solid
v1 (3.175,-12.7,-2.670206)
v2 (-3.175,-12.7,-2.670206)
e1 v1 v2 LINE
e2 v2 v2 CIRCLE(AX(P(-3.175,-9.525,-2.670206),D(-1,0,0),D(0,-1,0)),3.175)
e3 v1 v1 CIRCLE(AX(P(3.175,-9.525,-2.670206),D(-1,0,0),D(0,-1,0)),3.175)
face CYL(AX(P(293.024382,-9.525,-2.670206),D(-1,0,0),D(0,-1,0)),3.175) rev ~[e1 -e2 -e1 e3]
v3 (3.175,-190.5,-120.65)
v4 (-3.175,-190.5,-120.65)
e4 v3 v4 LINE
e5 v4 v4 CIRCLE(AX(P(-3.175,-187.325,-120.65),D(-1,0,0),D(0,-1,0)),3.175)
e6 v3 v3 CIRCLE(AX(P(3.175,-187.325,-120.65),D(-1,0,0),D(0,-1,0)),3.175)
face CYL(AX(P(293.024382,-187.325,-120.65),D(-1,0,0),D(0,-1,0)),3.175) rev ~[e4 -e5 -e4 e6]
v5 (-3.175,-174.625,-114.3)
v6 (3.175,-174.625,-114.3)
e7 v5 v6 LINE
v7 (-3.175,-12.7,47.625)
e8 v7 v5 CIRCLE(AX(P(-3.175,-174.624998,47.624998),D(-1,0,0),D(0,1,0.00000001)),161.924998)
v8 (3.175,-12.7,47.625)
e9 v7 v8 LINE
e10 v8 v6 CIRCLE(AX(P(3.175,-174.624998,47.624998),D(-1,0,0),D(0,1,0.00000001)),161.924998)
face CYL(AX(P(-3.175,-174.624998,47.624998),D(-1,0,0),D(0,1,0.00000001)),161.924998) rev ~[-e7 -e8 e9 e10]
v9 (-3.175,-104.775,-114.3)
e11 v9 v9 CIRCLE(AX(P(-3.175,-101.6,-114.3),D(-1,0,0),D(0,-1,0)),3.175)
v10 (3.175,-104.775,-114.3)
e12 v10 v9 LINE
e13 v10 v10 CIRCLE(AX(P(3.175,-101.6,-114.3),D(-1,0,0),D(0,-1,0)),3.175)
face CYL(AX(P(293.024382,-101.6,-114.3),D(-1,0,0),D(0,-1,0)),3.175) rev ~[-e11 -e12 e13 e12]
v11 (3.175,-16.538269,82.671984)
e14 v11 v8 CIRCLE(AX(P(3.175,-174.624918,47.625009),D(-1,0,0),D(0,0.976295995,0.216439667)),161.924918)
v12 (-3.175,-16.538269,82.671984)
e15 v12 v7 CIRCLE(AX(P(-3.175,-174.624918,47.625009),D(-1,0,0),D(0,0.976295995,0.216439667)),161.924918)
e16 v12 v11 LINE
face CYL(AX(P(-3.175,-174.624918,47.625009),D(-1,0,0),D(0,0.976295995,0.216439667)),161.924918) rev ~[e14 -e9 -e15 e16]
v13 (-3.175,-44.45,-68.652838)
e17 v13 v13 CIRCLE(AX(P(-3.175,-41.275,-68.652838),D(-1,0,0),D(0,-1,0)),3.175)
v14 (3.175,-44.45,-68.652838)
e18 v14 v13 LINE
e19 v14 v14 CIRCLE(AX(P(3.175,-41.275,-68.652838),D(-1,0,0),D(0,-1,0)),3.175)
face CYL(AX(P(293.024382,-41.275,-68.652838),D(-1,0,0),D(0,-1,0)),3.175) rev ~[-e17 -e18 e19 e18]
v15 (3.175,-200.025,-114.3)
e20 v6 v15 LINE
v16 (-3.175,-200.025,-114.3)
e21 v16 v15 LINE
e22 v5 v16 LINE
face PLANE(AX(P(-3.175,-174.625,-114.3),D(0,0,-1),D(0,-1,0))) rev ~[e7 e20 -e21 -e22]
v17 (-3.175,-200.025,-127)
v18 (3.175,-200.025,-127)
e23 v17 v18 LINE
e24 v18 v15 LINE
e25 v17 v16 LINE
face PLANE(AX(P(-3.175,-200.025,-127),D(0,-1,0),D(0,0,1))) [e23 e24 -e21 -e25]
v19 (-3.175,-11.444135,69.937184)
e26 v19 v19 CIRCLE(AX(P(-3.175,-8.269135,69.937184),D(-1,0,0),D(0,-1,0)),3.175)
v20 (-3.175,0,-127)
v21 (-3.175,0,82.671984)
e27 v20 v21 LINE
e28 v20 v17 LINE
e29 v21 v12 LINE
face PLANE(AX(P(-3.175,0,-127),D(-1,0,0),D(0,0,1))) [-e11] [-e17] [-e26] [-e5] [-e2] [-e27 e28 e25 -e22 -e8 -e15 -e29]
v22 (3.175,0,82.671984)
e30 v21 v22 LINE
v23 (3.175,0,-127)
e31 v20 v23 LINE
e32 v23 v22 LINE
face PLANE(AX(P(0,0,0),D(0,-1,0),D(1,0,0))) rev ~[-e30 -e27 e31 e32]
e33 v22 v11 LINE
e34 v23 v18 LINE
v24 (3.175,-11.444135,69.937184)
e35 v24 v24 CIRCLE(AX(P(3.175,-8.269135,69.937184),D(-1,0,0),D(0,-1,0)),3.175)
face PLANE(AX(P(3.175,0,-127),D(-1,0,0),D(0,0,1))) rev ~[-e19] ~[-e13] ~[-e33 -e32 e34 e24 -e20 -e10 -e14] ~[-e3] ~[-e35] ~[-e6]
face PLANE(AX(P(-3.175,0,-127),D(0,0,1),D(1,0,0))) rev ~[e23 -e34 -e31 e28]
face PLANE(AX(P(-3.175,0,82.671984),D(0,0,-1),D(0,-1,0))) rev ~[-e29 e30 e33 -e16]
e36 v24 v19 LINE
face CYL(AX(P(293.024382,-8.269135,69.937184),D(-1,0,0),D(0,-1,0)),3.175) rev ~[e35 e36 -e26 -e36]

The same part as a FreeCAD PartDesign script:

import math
import FreeCAD as App
import Part
import Sketcher
from FreeCAD import Vector
Q = App.Units.Quantity

doc = App.newDocument("Part")
params = doc.addObject("Spreadsheet::Sheet", "Params")
for row, (alias, value) in enumerate([
    ("sketch1_height", "10 in"),
    ("sketch1_width", "0.25 in"),
    ("pad1_length", "11 in"),
    ("sketch2_width", "11 in"),
    ("sketch2_height", "9.5 in"),
    ("sketch2_radius", "6.3749999 in"),
    ("pocket1_length", "1 in"),
    ("sketch3_height", "0.5 in"),
    ("sketch3_width", "3.125 in"),
    ("pocket2_length", "1 in"),
    ("sketch4_diameter", "0.25 in"),
    ("hole_diameter", "0.25 in"),
], start=1):
    params.set(f"A{row}", alias)
    params.set(f"B{row}", "=" + value)
    params.setAlias(f"B{row}", alias)

body = doc.addObject("PartDesign::Body", "Body")

sketch1 = body.newObject("Sketcher::SketchObject", "Sketch")
sketch1.AttachmentSupport = (doc.getObject("XZ_Plane"), [""])
sketch1.MapMode = "FlatFace"
sketch1.addGeometry(Part.LineSegment(Vector(-3.175, 127, 0), Vector(-3.175, -127, 0)), False)
sketch1.addGeometry(Part.LineSegment(Vector(-3.175, -127, 0), Vector(3.175, -127, 0)), False)
sketch1.addGeometry(Part.LineSegment(Vector(3.175, -127, 0), Vector(3.175, 127, 0)), False)
sketch1.addGeometry(Part.LineSegment(Vector(3.175, 127, 0), Vector(-3.175, 127, 0)), False)
sketch1.addConstraint(Sketcher.Constraint("Coincident", 0, 2, 1, 1))
sketch1.addConstraint(Sketcher.Constraint("Coincident", 1, 2, 2, 1))
sketch1.addConstraint(Sketcher.Constraint("Coincident", 2, 2, 3, 1))
sketch1.addConstraint(Sketcher.Constraint("Coincident", 3, 2, 0, 1))
sketch1.addConstraint(Sketcher.Constraint("Vertical", 0))
sketch1.addConstraint(Sketcher.Constraint("Horizontal", 1))
sketch1.addConstraint(Sketcher.Constraint("Vertical", 2))
sketch1.addConstraint(Sketcher.Constraint("Horizontal", 3))
sketch1.addConstraint(Sketcher.Constraint("Symmetric", 0, 2, 2, 2, -1, 1))
sketch1.addConstraint(Sketcher.Constraint("DistanceY", 0, 2, 0, 1, Q("10 in")))
sketch1.addConstraint(Sketcher.Constraint("DistanceX", 1, 1, 1, 2, Q("0.25 in")))
sketch1.setExpression("Constraints[9]", "Params.sketch1_height")
sketch1.setExpression("Constraints[10]", "Params.sketch1_width")
pad1 = body.newObject("PartDesign::Pad", "Pad")
pad1.Profile = sketch1
pad1.setExpression("Length", "Params.pad1_length")

sketch2 = body.newObject("Sketcher::SketchObject", "Sketch001")
sketch2.AttachmentSupport = (doc.getObject("YZ_Plane"), [""])
sketch2.MapMode = "FlatFace"
sketch2.AttachmentOffset = App.Placement(Vector(0, 0, -0.125 * 25.4), App.Rotation())
sketch2.addGeometry(Part.LineSegment(Vector(0, 82.671984, 0), Vector(-16.538269, 82.671984, 0)), False)
sketch2.addGeometry(Part.ArcOfCircle(Part.Circle(Vector(-174.624918, 47.625009, 0), Vector(0, 0, 1), 161.924918), math.radians(-0.000003), math.radians(12.500003)), False)
sketch2.addGeometry(Part.ArcOfCircle(Part.Circle(Vector(-174.624998, 47.624998, 0), Vector(0, 0, 1), 161.924998), math.radians(-90.000001), math.radians(0.000001)), False)
sketch2.addGeometry(Part.LineSegment(Vector(-174.625, -114.3, 0), Vector(-279.4, -114.3, 0)), False)
sketch2.addGeometry(Part.LineSegment(Vector(-279.4, -114.3, 0), Vector(-279.4, 127, 0)), False)
sketch2.addGeometry(Part.LineSegment(Vector(-279.4, 127, 0), Vector(0, 127, 0)), False)
sketch2.addGeometry(Part.LineSegment(Vector(0, 127, 0), Vector(0, 82.671984, 0)), False)
sketch2.addConstraint(Sketcher.Constraint("Coincident", 0, 2, 1, 2))
sketch2.addConstraint(Sketcher.Constraint("Tangent", 1, 1, 2, 2))
sketch2.addConstraint(Sketcher.Constraint("Tangent", 2, 1, 3, 1))
sketch2.addConstraint(Sketcher.Constraint("Coincident", 3, 2, 4, 1))
sketch2.addConstraint(Sketcher.Constraint("Coincident", 4, 2, 5, 1))
sketch2.addConstraint(Sketcher.Constraint("Coincident", 5, 2, 6, 1))
sketch2.addConstraint(Sketcher.Constraint("Coincident", 6, 2, 0, 1))
sketch2.addConstraint(Sketcher.Constraint("Horizontal", 0))
sketch2.addConstraint(Sketcher.Constraint("Horizontal", 3))
sketch2.addConstraint(Sketcher.Constraint("Vertical", 4))
sketch2.addConstraint(Sketcher.Constraint("Horizontal", 5))
sketch2.addConstraint(Sketcher.Constraint("Vertical", 6))
sketch2.addConstraint(Sketcher.Constraint("PointOnObject", 5, 2, -2))
sketch2.addConstraint(Sketcher.Constraint("Horizontal", 2, 3, 1, 1))
sketch2.addConstraint(Sketcher.Constraint("DistanceX", 5, 1, 5, 2, Q("11 in")))
sketch2.addConstraint(Sketcher.Constraint("DistanceY", 4, 1, 4, 2, Q("9.5 in")))
sketch2.addConstraint(Sketcher.Constraint("DistanceY", -1, 1, 4, 2, Q("5 in")))
sketch2.addConstraint(Sketcher.Constraint("Radius", 2, Q("6.3749999 in")))
sketch2.addConstraint(Sketcher.Constraint("DistanceX", 1, 1, -1, 1, Q("0.5 in")))
sketch2.addConstraint(Sketcher.Constraint("Radius", 1, 161.924918))
sketch2.addConstraint(Sketcher.Constraint("DistanceX", 0, 2, 0, 1, 16.538269))
sketch2.setExpression("Constraints[14]", "Params.sketch2_width")
sketch2.setExpression("Constraints[15]", "Params.sketch2_height")
sketch2.setExpression("Constraints[17]", "Params.sketch2_radius")
pocket1 = body.newObject("PartDesign::Pocket", "Pocket")
pocket1.Profile = sketch2
pocket1.setExpression("Length", "Params.pocket1_length")
pocket1.Reversed = True

sketch3 = body.newObject("Sketcher::SketchObject", "Sketch002")
sketch3.AttachmentSupport = (doc.getObject("YZ_Plane"), [""])
sketch3.MapMode = "FlatFace"
sketch3.AttachmentOffset = App.Placement(Vector(0, 0, -0.125 * 25.4), App.Rotation())
sketch3.addGeometry(Part.LineSegment(Vector(-200.025, -114.3, 0), Vector(-200.025, -127, 0)), False)
sketch3.addGeometry(Part.LineSegment(Vector(-200.025, -127, 0), Vector(-279.4, -127, 0)), False)
sketch3.addGeometry(Part.LineSegment(Vector(-279.4, -127, 0), Vector(-279.4, -114.3, 0)), False)
sketch3.addGeometry(Part.LineSegment(Vector(-279.4, -114.3, 0), Vector(-200.025, -114.3, 0)), False)
sketch3.addConstraint(Sketcher.Constraint("Coincident", 0, 2, 1, 1))
sketch3.addConstraint(Sketcher.Constraint("Coincident", 1, 2, 2, 1))
sketch3.addConstraint(Sketcher.Constraint("Coincident", 2, 2, 3, 1))
sketch3.addConstraint(Sketcher.Constraint("Coincident", 3, 2, 0, 1))
sketch3.addConstraint(Sketcher.Constraint("Vertical", 0))
sketch3.addConstraint(Sketcher.Constraint("Horizontal", 1))
sketch3.addConstraint(Sketcher.Constraint("Vertical", 2))
sketch3.addConstraint(Sketcher.Constraint("Horizontal", 3))
sketch3.addConstraint(Sketcher.Constraint("DistanceY", 0, 2, 0, 1, Q("0.5 in")))
sketch3.addConstraint(Sketcher.Constraint("DistanceY", 0, 2, -1, 1, Q("5 in")))
sketch3.addConstraint(Sketcher.Constraint("DistanceX", 1, 2, -1, 1, Q("11 in")))
sketch3.addConstraint(Sketcher.Constraint("DistanceX", 1, 2, 1, 1, Q("3.125 in")))
sketch3.setExpression("Constraints[8]", "Params.sketch3_height")
sketch3.setExpression("Constraints[11]", "Params.sketch3_width")
pocket2 = body.newObject("PartDesign::Pocket", "Pocket001")
pocket2.Profile = sketch3
pocket2.setExpression("Length", "Params.pocket2_length")
pocket2.Reversed = True

sketch4 = body.newObject("Sketcher::SketchObject", "Sketch003")
sketch4.AttachmentSupport = (doc.getObject("YZ_Plane"), [""])
sketch4.MapMode = "FlatFace"
sketch4.AttachmentOffset = App.Placement(Vector(0, 0, 0.125 * 25.4), App.Rotation())
sketch4.addGeometry(Part.Circle(Vector(-187.325, -120.65, 0), Vector(0, 0, 1), 3.175), False)
sketch4.addGeometry(Part.Circle(Vector(-101.6, -114.3, 0), Vector(0, 0, 1), 3.175), False)
sketch4.addGeometry(Part.Circle(Vector(-41.275, -68.652838, 0), Vector(0, 0, 1), 3.175), False)
sketch4.addGeometry(Part.Circle(Vector(-9.525, -2.670206, 0), Vector(0, 0, 1), 3.175), False)
sketch4.addGeometry(Part.Circle(Vector(-8.269135, 69.937184, 0), Vector(0, 0, 1), 3.175), False)
sketch4.addConstraint(Sketcher.Constraint("Equal", 0, 1))
sketch4.addConstraint(Sketcher.Constraint("Equal", 1, 2))
sketch4.addConstraint(Sketcher.Constraint("Equal", 2, 3))
sketch4.addConstraint(Sketcher.Constraint("Equal", 3, 4))
sketch4.addConstraint(Sketcher.Constraint("Diameter", 0, Q("0.25 in")))
sketch4.addConstraint(Sketcher.Constraint("DistanceX", 1, 3, -1, 1, Q("4 in")))
sketch4.addConstraint(Sketcher.Constraint("DistanceX", 0, 3, 3, 3, Q("7 in")))
sketch4.addConstraint(Sketcher.Constraint("DistanceY", 1, 3, -1, 1, Q("4.5 in")))
sketch4.addConstraint(Sketcher.Constraint("DistanceY", 0, 3, -1, 1, Q("4.75 in")))
sketch4.addConstraint(Sketcher.Constraint("DistanceX", 0, 3, 2, 3, Q("5.75 in")))
sketch4.addConstraint(Sketcher.Constraint("DistanceX", 0, 3, -1, 1, Q("7.375 in")))
sketch4.addConstraint(Sketcher.Constraint("DistanceY", 2, 3, 4, 3, Q("5.4563001 in")))
sketch4.addConstraint(Sketcher.Constraint("DistanceY", 2, 3, -1, 1, 68.652838))
sketch4.addConstraint(Sketcher.Constraint("DistanceY", 3, 3, 4, 3, 72.60739))
sketch4.addConstraint(Sketcher.Constraint("DistanceX", 4, 3, -1, 1, 8.269135))
sketch4.setExpression("Constraints[4]", "Params.sketch4_diameter")
doc.recompute()
hole = body.newObject("PartDesign::Hole", "Hole")
hole.Profile = sketch4
hole.ThreadType = "None"
hole.setExpression("Diameter", "Params.hole_diameter")
hole.DepthType = "ThroughAll"

doc.recompute()
